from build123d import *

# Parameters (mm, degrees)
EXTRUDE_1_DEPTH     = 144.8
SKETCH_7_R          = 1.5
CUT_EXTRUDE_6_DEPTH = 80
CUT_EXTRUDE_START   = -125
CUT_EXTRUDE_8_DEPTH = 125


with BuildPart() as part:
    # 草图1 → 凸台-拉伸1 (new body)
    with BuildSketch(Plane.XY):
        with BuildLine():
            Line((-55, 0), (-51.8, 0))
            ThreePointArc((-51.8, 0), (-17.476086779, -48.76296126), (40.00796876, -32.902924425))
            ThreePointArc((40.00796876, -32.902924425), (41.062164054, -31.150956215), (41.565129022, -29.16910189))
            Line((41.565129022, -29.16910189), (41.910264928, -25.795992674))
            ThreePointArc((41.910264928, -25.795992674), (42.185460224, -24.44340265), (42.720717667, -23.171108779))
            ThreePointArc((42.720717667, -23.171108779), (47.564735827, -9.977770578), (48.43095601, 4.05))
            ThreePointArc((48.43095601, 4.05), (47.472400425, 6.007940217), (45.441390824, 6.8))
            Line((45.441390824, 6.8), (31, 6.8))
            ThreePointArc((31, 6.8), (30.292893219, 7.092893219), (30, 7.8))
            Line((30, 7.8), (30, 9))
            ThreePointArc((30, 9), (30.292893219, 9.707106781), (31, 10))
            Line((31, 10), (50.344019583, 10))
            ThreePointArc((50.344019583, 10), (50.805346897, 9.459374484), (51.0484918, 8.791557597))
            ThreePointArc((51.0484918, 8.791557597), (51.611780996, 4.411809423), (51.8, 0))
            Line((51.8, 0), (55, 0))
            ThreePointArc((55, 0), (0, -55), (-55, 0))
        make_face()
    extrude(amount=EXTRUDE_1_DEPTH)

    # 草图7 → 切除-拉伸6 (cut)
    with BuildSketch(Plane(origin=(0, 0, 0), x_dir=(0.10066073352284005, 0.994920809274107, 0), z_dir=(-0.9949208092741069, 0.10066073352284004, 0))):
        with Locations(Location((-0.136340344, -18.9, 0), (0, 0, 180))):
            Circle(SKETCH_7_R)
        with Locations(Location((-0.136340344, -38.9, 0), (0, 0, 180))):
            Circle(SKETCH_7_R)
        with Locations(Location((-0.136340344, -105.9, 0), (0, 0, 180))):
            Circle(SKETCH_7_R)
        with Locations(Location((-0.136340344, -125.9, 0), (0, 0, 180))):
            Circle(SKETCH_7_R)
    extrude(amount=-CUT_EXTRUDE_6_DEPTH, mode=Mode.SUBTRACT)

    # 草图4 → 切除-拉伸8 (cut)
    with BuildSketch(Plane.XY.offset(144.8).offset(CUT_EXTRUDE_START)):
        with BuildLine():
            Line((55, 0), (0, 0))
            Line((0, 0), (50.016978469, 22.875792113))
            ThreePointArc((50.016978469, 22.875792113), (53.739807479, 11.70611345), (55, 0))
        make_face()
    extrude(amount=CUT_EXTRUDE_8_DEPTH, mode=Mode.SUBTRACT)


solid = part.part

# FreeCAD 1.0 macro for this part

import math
import FreeCAD as App
import Part
import Sketcher

V = App.Vector

doc = App.newDocument("Part")
body = doc.addObject("PartDesign::Body", "Body")

# Sketch on XY plane
sketch1 = doc.addObject("Sketcher::SketchObject", "Sketch")
body.addObject(sketch1)
sketch1.AttachmentSupport = (doc.XY_Plane, [""])
sketch1.MapMode = "FlatFace"
sketch1.addGeometry(Part.LineSegment(V(-51.8, 0, 0), V(-55, 0, 0)), False)
sketch1.addGeometry(Part.ArcOfCircle(Part.Circle(V(0, 0, 0), V(0, 0, 1), 55), math.radians(180), math.radians(360)), False)
sketch1.addGeometry(Part.LineSegment(V(55, 0, 0), V(51.8, 0, 0)), False)
sketch1.addGeometry(Part.ArcOfCircle(Part.Circle(V(0, 0, 0), V(0, 0, 1), 51.8), math.radians(0), math.radians(9.77)), False)
sketch1.addGeometry(Part.ArcOfCircle(Part.Circle(V(49.1, 8.5, 0), V(0, 0, 1), 2), math.radians(10), math.radians(51)), False)
sketch1.addGeometry(Part.LineSegment(V(50.3, 10, 0), V(31, 10, 0)), False)
sketch1.addGeometry(Part.ArcOfCircle(Part.Circle(V(31, 9, 0), V(0, 0, 1), 1), math.radians(90), math.radians(180)), False)
sketch1.addGeometry(Part.LineSegment(V(30, 9, 0), V(30, 7.8, 0)), False)
sketch1.addGeometry(Part.ArcOfCircle(Part.Circle(V(31, 7.8, 0), V(0, 0, 1), 1), math.radians(-180), math.radians(-90)), False)
sketch1.addGeometry(Part.LineSegment(V(31, 6.8, 0), V(45.4, 6.8, 0)), False)
sketch1.addGeometry(Part.ArcOfCircle(Part.Circle(V(45.4, 3.8, 0), V(0, 0, 1), 3), math.radians(5), math.radians(90)), False)
sketch1.addGeometry(Part.ArcOfCircle(Part.Circle(V(0, 0, 0), V(0, 0, 1), 48.6), math.radians(-28), math.radians(5)), False)
sketch1.addGeometry(Part.ArcOfCircle(Part.Circle(V(48.9, -26.5, 0), V(0, 0, 1), 7), math.radians(152), math.radians(174)), False)
sketch1.addGeometry(Part.LineSegment(V(41.9, -25.8, 0), V(41.6, -29.2, 0)), False)
sketch1.addGeometry(Part.ArcOfCircle(Part.Circle(V(34.6, -28.5, 0), V(0, 0, 1), 7), math.radians(-39), math.radians(-6)), False)
sketch1.addGeometry(Part.ArcOfCircle(Part.Circle(V(0, 0, 0), V(0, 0, 1), 51.8), math.radians(-180), math.radians(-39)), False)
sketch1.addConstraint(Sketcher.Constraint("Coincident", 0, 2, 1, 1))
sketch1.addConstraint(Sketcher.Constraint("Coincident", 1, 2, 2, 1))
sketch1.addConstraint(Sketcher.Constraint("Coincident", 2, 2, 3, 1))
sketch1.addConstraint(Sketcher.Constraint("Tangent", 3, 2, 4, 1))
sketch1.addConstraint(Sketcher.Constraint("Coincident", 4, 2, 5, 1))
sketch1.addConstraint(Sketcher.Constraint("Tangent", 5, 2, 6, 1))
sketch1.addConstraint(Sketcher.Constraint("Tangent", 6, 2, 7, 1))
sketch1.addConstraint(Sketcher.Constraint("Tangent", 7, 2, 8, 1))
sketch1.addConstraint(Sketcher.Constraint("Tangent", 8, 2, 9, 1))
sketch1.addConstraint(Sketcher.Constraint("Tangent", 9, 2, 10, 2))
sketch1.addConstraint(Sketcher.Constraint("Tangent", 10, 1, 11, 2))
sketch1.addConstraint(Sketcher.Constraint("Tangent", 11, 1, 12, 1))
sketch1.addConstraint(Sketcher.Constraint("Tangent", 12, 2, 13, 1))
sketch1.addConstraint(Sketcher.Constraint("Tangent", 13, 2, 14, 2))
sketch1.addConstraint(Sketcher.Constraint("Tangent", 14, 1, 15, 2))
sketch1.addConstraint(Sketcher.Constraint("Coincident", 15, 1, 0, 1))
sketch1.addConstraint(Sketcher.Constraint("Horizontal", 0))
sketch1.addConstraint(Sketcher.Constraint("Horizontal", 2))
sketch1.addConstraint(Sketcher.Constraint("Horizontal", 5))
sketch1.addConstraint(Sketcher.Constraint("Vertical", 7))
sketch1.addConstraint(Sketcher.Constraint("Horizontal", 9))
sketch1.addConstraint(Sketcher.Constraint("Coincident", 1, 3, -1, 1))
sketch1.addConstraint(Sketcher.Constraint("Coincident", 3, 3, -1, 1))
sketch1.addConstraint(Sketcher.Constraint("Coincident", 11, 3, -1, 1))
sketch1.addConstraint(Sketcher.Constraint("Coincident", 15, 3, -1, 1))
sketch1.addConstraint(Sketcher.Constraint("Equal", 6, 8))
sketch1.addConstraint(Sketcher.Constraint("Equal", 12, 14))
sketch1.addConstraint(Sketcher.Constraint("Equal", 3, 15))
sketch1.addConstraint(Sketcher.Constraint("PointOnObject", 0, 2, -1))
sketch1.addConstraint(Sketcher.Constraint("PointOnObject", 1, 2, -1))
sketch1.addConstraint(Sketcher.Constraint("Radius", 1, 55.0))
sketch1.addConstraint(Sketcher.Constraint("Radius", 4, 2.0))
sketch1.addConstraint(Sketcher.Constraint("Radius", 6, 1.0))
sketch1.addConstraint(Sketcher.Constraint("Radius", 10, 3.0))
sketch1.addConstraint(Sketcher.Constraint("Radius", 12, 7.0))
sketch1.addConstraint(Sketcher.Constraint("Radius", 3, 51.8))
sketch1.addConstraint(Sketcher.Constraint("Radius", 11, 48.6))
sketch1.addConstraint(Sketcher.Constraint("DistanceY", 7, 2, 7, 1, 1.2))
sketch1.addConstraint(Sketcher.Constraint("DistanceX", -1, 1, 6, 3, 31.0))
sketch1.addConstraint(Sketcher.Constraint("DistanceY", -1, 1, 6, 3, 9.0))
sketch1.addConstraint(Sketcher.Constraint("DistanceX", 5, 2, 5, 1, 19.34402))
sketch1.addConstraint(Sketcher.Constraint("DistanceY", 13, 2, -1, 1, 29.169102))
sketch1.addConstraint(Sketcher.Constraint("DistanceX", 12, 3, 4, 3, 0.2036))
pad1 = doc.addObject("PartDesign::Pad", "Pad")
body.addObject(pad1)
pad1.Profile = sketch1
pad1.Length = 144.8

# Sketch on an angled plane
sketch2 = doc.addObject("Sketcher::SketchObject", "Sketch001")
body.addObject(sketch2)
sketch2.Placement = App.Placement(V(0, 0, 0), App.Rotation(V(0.100660734, 0.994920809, 0), V(0, 0, -1), V(-0.994920809, 0.100660734, 0), "ZXY"))
sketch2.addGeometry(Part.Circle(V(-0.1, -18.9, 0), V(0, 0, 1), 1.5), False)
sketch2.addGeometry(Part.Circle(V(-0.1, -38.9, 0), V(0, 0, 1), 1.5), False)
sketch2.addGeometry(Part.Circle(V(-0.1, -105.9, 0), V(0, 0, 1), 1.5), False)
sketch2.addGeometry(Part.Circle(V(-0.1, -125.9, 0), V(0, 0, 1), 1.5), False)
sketch2.addConstraint(Sketcher.Constraint("Equal", 0, 1))
sketch2.addConstraint(Sketcher.Constraint("Equal", 1, 2))
sketch2.addConstraint(Sketcher.Constraint("Equal", 2, 3))
sketch2.addConstraint(Sketcher.Constraint("Vertical", 0, 3, 1, 3))
sketch2.addConstraint(Sketcher.Constraint("Vertical", 1, 3, 2, 3))
sketch2.addConstraint(Sketcher.Constraint("Vertical", 2, 3, 3, 3))
sketch2.addConstraint(Sketcher.Constraint("Diameter", 0, 3.0))
sketch2.addConstraint(Sketcher.Constraint("DistanceY", 1, 3, 0, 3, 20.0))
sketch2.addConstraint(Sketcher.Constraint("DistanceY", 2, 3, 1, 3, 67.0))
sketch2.addConstraint(Sketcher.Constraint("DistanceY", 3, 3, 2, 3, 20.0))
sketch2.addConstraint(Sketcher.Constraint("DistanceY", 0, 3, -1, 1, 18.9))
sketch2.addConstraint(Sketcher.Constraint("DistanceX", 0, 3, -1, 1, 0.13634))
pocket1 = doc.addObject("PartDesign::Pocket", "Pocket")
body.addObject(pocket1)
pocket1.Profile = sketch2
pocket1.Length = 80

# Sketch on XY plane
sketch3 = doc.addObject("Sketcher::SketchObject", "Sketch002")
body.addObject(sketch3)
sketch3.AttachmentSupport = (doc.XY_Plane, [""])
sketch3.MapMode = "FlatFace"
sketch3.AttachmentOffset = App.Placement(V(0, 0, 19.8), App.Rotation())
sketch3.addGeometry(Part.LineSegment(V(0, 0, 0), V(55, 0, 0)), False)
sketch3.addGeometry(Part.ArcOfCircle(Part.Circle(V(0, 0, 0), V(0, 0, 1), 55), math.radians(0), math.radians(25)), False)
sketch3.addGeometry(Part.LineSegment(V(50, 23, 0), V(0, 0, 0)), False)
sketch3.addConstraint(Sketcher.Constraint("Coincident", 0, 2, 1, 1))
sketch3.addConstraint(Sketcher.Constraint("Coincident", 1, 2, 2, 1))
sketch3.addConstraint(Sketcher.Constraint("Coincident", 2, 2, 0, 1))
sketch3.addConstraint(Sketcher.Constraint("Horizontal", 0))
sketch3.addConstraint(Sketcher.Constraint("Coincident", 1, 3, -1, 1))
sketch3.addConstraint(Sketcher.Constraint("Coincident", 2, 2, -1, 1))
sketch3.addConstraint(Sketcher.Constraint("Radius", 1, 55.0))
sketch3.addConstraint(Sketcher.Constraint("DistanceX", -1, 1, 1, 2, 50.016978))
pocket2 = doc.addObject("PartDesign::Pocket", "Pocket001")
body.addObject(pocket2)
pocket2.Profile = sketch3
pocket2.Length = 125
pocket2.Reversed = True

doc.recompute()
